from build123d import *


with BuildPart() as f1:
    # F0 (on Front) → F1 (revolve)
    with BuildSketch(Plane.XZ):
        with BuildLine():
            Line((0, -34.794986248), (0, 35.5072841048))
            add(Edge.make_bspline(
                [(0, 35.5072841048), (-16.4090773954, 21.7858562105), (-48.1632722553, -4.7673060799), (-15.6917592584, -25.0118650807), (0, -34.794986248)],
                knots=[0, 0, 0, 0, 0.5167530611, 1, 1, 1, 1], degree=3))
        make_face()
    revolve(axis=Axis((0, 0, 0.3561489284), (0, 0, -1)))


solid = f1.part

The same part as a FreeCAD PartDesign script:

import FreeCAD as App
import Part
import Sketcher
from FreeCAD import Vector

doc = App.newDocument("Part")
params = doc.addObject("Spreadsheet::Sheet", "Params")
for row, (alias, value) in enumerate([
    ("revolution_angle", "360 deg"),
], start=1):
    params.set(f"A{row}", alias)
    params.set(f"B{row}", "=" + value)
    params.setAlias(f"B{row}", alias)

body = doc.addObject("PartDesign::Body", "Body")

sketch1 = body.newObject("Sketcher::SketchObject", "Sketch")
sketch1.AttachmentSupport = (doc.getObject("XZ_Plane"), [""])
sketch1.MapMode = "FlatFace"
sketch1.addGeometry([
    Part.LineSegment(Vector(0, -34.794986, 0), Vector(0, 35.507284, 0)),
    Part.BSplineCurve([Vector(0, 35.507284, 0), Vector(-16.409077, 21.785856, 0), Vector(-48.163272, -4.767306, 0), Vector(-15.691759, -25.011865, 0), Vector(0, -34.794986, 0)], [4, 1, 4], [0, 0.516753061, 1], False, 3, [1, 1, 1, 1, 1], False),
], False)
sketch1.addConstraint([
    Sketcher.Constraint("Block", 1),
    Sketcher.Constraint("Coincident", 0, 1, 1, 2),
    Sketcher.Constraint("Coincident", 1, 1, 0, 2),
])
revolution = body.newObject("PartDesign::Revolution", "Revolution")
revolution.Profile = sketch1
revolution.ReferenceAxis = (sketch1, ["V_Axis"])
revolution.setExpression("Angle", "Params.revolution_angle")

doc.recompute()
